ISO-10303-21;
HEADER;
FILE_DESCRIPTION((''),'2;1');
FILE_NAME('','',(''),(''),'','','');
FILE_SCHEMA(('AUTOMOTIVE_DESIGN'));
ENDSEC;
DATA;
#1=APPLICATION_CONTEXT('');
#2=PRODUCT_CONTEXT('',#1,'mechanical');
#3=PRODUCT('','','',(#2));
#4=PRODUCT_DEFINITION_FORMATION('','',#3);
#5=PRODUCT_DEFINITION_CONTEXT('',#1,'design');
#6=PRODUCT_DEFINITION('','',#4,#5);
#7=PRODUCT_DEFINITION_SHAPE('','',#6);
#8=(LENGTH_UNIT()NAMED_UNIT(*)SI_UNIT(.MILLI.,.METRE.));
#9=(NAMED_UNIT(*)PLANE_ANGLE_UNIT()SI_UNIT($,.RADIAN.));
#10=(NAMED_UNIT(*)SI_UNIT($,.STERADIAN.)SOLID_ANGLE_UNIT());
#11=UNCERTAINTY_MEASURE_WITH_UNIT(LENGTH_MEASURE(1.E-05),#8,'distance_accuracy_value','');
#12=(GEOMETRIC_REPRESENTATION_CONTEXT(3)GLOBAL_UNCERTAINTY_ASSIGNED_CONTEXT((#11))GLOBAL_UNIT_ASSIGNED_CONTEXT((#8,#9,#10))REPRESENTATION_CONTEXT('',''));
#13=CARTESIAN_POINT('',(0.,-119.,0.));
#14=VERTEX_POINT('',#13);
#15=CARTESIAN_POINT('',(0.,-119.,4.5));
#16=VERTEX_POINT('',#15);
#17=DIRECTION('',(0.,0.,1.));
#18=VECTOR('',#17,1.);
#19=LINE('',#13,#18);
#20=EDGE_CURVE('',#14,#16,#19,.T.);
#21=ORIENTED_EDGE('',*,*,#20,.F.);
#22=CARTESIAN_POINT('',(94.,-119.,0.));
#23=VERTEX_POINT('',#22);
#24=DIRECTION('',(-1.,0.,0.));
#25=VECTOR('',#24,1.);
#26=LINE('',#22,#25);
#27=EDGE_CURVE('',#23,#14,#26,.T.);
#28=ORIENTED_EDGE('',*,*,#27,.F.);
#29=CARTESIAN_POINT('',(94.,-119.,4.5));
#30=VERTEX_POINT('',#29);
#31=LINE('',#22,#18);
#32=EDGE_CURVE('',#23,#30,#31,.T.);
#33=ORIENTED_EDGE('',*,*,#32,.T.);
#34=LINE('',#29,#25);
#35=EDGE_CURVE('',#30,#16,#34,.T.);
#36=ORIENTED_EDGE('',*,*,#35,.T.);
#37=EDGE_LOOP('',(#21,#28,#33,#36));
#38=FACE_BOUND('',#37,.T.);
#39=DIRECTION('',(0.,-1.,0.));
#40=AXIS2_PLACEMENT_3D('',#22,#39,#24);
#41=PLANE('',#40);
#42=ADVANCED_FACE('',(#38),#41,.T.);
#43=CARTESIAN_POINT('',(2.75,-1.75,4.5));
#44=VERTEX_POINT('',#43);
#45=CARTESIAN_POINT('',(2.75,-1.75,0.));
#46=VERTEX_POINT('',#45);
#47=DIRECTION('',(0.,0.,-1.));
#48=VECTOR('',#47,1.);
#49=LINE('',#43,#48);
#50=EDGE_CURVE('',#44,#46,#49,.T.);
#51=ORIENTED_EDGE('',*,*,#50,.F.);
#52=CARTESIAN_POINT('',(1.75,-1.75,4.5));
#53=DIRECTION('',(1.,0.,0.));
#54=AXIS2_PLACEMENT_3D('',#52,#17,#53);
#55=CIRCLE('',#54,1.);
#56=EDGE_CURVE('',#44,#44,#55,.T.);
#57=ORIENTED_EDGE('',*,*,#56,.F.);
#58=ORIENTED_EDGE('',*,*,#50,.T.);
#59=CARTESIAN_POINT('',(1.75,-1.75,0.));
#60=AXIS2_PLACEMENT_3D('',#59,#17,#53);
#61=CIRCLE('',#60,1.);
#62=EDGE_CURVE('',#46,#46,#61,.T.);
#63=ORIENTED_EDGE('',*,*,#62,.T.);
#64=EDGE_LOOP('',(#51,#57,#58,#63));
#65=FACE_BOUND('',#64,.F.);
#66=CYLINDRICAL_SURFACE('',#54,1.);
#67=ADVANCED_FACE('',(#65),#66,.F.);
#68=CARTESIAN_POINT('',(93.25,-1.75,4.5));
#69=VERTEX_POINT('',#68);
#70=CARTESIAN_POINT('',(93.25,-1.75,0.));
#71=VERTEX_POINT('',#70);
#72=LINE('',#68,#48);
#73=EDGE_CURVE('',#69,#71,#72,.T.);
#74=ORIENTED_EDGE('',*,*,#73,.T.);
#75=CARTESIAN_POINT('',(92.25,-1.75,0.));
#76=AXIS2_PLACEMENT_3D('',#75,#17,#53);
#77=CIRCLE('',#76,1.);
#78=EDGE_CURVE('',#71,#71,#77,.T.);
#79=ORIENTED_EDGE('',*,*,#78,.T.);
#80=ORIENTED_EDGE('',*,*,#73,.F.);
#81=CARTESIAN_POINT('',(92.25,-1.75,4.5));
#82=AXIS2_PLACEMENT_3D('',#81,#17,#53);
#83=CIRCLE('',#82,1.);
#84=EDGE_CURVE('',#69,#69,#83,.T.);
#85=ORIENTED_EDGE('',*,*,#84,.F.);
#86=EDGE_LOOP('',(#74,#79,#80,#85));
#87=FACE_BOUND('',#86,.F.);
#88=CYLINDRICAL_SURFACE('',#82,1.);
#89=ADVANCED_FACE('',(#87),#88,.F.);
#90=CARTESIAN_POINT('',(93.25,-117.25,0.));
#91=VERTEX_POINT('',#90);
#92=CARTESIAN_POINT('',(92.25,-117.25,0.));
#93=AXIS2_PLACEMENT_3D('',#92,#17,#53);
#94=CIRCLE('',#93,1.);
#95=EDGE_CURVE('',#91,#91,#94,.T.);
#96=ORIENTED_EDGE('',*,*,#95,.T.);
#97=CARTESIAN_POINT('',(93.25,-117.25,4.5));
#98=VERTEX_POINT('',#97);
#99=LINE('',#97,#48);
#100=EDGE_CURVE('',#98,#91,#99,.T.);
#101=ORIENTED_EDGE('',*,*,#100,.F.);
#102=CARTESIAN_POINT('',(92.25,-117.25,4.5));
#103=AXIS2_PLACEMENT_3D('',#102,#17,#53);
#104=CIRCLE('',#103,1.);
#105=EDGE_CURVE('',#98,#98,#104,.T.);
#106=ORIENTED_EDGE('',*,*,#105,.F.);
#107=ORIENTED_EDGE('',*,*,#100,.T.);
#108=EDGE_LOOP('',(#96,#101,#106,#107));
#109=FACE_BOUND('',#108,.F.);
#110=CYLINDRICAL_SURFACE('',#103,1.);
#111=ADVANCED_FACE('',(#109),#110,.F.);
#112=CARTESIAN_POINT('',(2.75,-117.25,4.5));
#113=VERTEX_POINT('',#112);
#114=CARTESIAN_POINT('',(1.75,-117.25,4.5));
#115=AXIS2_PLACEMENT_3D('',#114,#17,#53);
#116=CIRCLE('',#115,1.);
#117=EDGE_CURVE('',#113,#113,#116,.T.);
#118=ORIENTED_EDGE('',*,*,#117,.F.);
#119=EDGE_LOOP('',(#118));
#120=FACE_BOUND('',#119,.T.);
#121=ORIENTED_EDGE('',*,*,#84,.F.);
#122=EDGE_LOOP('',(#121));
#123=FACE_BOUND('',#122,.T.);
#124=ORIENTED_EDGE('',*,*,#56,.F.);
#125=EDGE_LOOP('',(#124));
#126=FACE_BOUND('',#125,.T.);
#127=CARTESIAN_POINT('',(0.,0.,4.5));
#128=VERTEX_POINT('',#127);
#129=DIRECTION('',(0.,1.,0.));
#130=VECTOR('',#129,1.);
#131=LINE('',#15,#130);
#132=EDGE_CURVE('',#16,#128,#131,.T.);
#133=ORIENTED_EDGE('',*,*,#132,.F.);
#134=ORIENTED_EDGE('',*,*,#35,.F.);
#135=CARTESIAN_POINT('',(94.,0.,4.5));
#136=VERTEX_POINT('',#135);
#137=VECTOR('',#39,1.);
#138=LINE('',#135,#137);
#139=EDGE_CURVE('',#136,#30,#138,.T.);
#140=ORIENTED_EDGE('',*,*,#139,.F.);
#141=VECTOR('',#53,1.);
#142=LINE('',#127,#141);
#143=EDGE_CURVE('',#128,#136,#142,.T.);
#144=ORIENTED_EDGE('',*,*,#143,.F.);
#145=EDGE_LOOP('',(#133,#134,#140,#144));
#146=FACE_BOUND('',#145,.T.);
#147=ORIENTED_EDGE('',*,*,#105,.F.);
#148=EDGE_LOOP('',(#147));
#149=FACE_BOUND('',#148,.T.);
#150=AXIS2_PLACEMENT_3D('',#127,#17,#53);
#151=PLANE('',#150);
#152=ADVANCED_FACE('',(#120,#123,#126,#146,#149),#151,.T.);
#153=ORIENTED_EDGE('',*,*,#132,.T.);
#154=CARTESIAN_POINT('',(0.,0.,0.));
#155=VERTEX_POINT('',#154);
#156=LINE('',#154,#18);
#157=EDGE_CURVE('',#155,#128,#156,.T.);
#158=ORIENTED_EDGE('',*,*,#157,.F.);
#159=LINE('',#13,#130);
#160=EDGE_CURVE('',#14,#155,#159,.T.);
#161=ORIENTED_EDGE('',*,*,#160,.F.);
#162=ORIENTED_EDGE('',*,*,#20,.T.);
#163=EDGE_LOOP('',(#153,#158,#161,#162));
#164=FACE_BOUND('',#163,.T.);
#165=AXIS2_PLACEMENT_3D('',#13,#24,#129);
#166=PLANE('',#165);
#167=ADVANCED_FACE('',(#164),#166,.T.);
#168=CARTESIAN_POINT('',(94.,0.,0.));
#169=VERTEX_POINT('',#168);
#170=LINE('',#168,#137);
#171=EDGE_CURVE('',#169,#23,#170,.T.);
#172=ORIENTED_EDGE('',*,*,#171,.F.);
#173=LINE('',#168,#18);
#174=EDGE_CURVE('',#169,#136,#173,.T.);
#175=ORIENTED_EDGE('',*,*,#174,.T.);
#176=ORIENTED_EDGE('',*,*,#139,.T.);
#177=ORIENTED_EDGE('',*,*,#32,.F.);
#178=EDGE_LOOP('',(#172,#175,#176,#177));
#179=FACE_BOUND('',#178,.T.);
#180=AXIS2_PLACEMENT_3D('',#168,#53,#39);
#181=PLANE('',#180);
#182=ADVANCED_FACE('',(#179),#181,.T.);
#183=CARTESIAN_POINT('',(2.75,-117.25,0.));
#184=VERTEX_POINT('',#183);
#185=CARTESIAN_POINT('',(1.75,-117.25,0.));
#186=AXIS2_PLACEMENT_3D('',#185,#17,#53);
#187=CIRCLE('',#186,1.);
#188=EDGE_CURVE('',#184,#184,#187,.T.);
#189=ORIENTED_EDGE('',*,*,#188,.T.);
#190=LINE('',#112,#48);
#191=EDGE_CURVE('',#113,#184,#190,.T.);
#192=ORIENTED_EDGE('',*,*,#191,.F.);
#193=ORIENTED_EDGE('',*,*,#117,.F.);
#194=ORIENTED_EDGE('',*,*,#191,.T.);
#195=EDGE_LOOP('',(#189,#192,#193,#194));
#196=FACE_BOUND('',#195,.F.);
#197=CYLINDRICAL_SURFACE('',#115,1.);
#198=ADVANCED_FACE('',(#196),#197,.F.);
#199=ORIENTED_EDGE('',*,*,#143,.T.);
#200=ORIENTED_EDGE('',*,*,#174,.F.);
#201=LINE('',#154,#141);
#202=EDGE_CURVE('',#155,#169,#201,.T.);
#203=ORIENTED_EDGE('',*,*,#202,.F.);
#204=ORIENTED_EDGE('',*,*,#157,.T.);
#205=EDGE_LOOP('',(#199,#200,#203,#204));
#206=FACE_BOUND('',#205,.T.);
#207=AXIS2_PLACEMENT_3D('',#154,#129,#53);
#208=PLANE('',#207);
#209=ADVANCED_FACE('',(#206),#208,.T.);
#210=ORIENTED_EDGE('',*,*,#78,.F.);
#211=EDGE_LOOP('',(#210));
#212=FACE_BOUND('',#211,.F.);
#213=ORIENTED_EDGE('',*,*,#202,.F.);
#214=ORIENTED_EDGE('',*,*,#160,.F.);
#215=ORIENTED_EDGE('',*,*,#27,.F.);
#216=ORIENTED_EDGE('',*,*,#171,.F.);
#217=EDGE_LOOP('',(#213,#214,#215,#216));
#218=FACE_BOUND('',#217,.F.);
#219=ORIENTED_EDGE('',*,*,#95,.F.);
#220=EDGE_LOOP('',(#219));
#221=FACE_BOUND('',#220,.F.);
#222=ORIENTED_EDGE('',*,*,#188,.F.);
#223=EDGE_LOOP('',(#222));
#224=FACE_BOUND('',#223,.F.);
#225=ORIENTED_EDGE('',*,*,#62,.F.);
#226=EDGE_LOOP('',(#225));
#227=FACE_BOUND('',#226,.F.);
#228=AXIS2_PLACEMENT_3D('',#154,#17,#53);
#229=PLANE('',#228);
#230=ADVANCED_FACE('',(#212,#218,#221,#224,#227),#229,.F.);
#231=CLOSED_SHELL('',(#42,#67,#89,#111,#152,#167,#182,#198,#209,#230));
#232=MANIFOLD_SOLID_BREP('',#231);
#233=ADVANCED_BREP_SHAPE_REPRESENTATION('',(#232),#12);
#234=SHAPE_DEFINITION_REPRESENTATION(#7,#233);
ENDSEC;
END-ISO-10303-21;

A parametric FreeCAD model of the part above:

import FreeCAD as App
import Part
import Sketcher
from FreeCAD import Vector


def add_polygon(sketch, points):
    """Adds a closed chain of lines whose ends are joined by coincident constraints."""
    first, n = sketch.GeometryCount, len(points)
    for a, b in zip(points, points[1:] + points[:1]):
        sketch.addGeometry(Part.LineSegment(App.Vector(*a, 0), App.Vector(*b, 0)), False)
    for i in range(n):
        sketch.addConstraint(Sketcher.Constraint("Coincident", first + i, 2, first + (i + 1) % n, 1))

doc = App.newDocument("Part")
body = doc.addObject("PartDesign::Body", "Body")

sketch1 = body.newObject("Sketcher::SketchObject", "Sketch")
sketch1.AttachmentSupport = (doc.getObject("XY_Plane"), [""])
sketch1.MapMode = "FlatFace"
add_polygon(sketch1, [(94, 0), (0, 0), (0, -119), (94, -119)])
sketch1.addConstraint([
    Sketcher.Constraint("Horizontal", 0),
    Sketcher.Constraint("Vertical", 1),
    Sketcher.Constraint("Horizontal", 2),
    Sketcher.Constraint("Vertical", 3),
    Sketcher.Constraint("Coincident", 0, 2, -1, 1),
    Sketcher.Constraint("DistanceX", 0, 2, 0, 1, 94.0),
    Sketcher.Constraint("DistanceY", 1, 2, 1, 1, 119.0),
])
pad1 = body.newObject("PartDesign::Pad", "Pad")
pad1.Profile = sketch1
pad1.Length = 4.5

sketch2 = body.newObject("Sketcher::SketchObject", "Sketch001")
sketch2.AttachmentSupport = (doc.getObject("XY_Plane"), [""])
sketch2.MapMode = "FlatFace"
sketch2.AttachmentOffset = App.Placement(Vector(0, 0, 4.5), App.Rotation())
sketch2.addGeometry([
    Part.Circle(Vector(92.2, -117.2, 0), Vector(0, 0, 1), 1),
    Part.Circle(Vector(1.8, -117.2, 0), Vector(0, 0, 1), 1),
    Part.Circle(Vector(1.8, -1.8, 0), Vector(0, 0, 1), 1),
    Part.Circle(Vector(92.2, -1.8, 0), Vector(0, 0, 1), 1),
], False)
sketch2.addConstraint([
    Sketcher.Constraint("Equal", 0, 1),
    Sketcher.Constraint("Equal", 1, 2),
    Sketcher.Constraint("Equal", 2, 3),
    Sketcher.Constraint("Horizontal", 0, 3, 1, 3),
    Sketcher.Constraint("Horizontal", 2, 3, 3, 3),
    Sketcher.Constraint("Vertical", 1, 3, 2, 3),
    Sketcher.Constraint("Vertical", 0, 3, 3, 3),
    Sketcher.Constraint("Diameter", 0, 2.0),
    Sketcher.Constraint("DistanceX", -1, 1, 1, 3, 1.75),
    Sketcher.Constraint("DistanceY", 2, 3, -1, 1, 1.75),
    Sketcher.Constraint("DistanceX", 1, 3, 0, 3, 90.5),
    Sketcher.Constraint("DistanceY", 1, 3, 2, 3, 115.5),
])
pocket1 = body.newObject("PartDesign::Pocket", "Pocket")
pocket1.Profile = sketch2
pocket1.Length = 8

doc.recompute()
